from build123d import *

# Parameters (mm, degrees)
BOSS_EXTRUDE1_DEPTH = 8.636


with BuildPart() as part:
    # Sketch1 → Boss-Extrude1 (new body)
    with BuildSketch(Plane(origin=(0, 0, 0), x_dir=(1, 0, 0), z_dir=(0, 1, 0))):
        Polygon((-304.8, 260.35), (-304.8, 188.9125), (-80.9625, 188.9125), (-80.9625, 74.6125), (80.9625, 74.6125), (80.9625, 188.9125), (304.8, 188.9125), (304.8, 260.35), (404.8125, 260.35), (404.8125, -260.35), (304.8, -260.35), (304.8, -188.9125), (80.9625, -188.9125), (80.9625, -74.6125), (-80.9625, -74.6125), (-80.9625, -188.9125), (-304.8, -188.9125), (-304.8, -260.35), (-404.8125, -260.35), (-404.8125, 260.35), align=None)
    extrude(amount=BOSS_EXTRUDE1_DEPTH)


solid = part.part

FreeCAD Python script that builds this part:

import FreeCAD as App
import Part
import Sketcher
from FreeCAD import Vector
Q = App.Units.Quantity


def add_polygon(sketch, points):
    """Adds a closed chain of lines whose ends are joined by coincident constraints."""
    first, n = sketch.GeometryCount, len(points)
    for a, b in zip(points, points[1:] + points[:1]):
        sketch.addGeometry(Part.LineSegment(App.Vector(*a, 0), App.Vector(*b, 0)), False)
    for i in range(n):
        sketch.addConstraint(Sketcher.Constraint("Coincident", first + i, 2, first + (i + 1) % n, 1))

doc = App.newDocument("Part")
params = doc.addObject("Spreadsheet::Sheet", "Params")
for row, (alias, value) in enumerate([
    ("sketch1_height", "20.5 in"),
    ("sketch1_height2", "4.5 in"),
    ("sketch1_width", "3.9375 in"),
    ("sketch1_width2", "8.8125 in"),
    ("sketch1_height3", "2.8125 in"),
    ("pad1_length", "0.34 in"),
], start=1):
    params.set(f"A{row}", alias)
    params.set(f"B{row}", "=" + value)
    params.setAlias(f"B{row}", alias)

body = doc.addObject("PartDesign::Body", "Body")

sketch1 = body.newObject("Sketcher::SketchObject", "Sketch")
sketch1.AttachmentSupport = (doc.getObject("XZ_Plane"), [""])
sketch1.MapMode = "FlatFace"
add_polygon(sketch1, [(-305, -189), (-305, -260), (-405, -260), (-405, 260), (-305, 260), (-305, 189), (-81, 189), (-81, 75), (81, 75), (81, 189), (305, 189), (305, 260), (405, 260), (405, -260), (305, -260), (305, -189), (81, -189), (81, -75), (-81, -75), (-81, -189)])
sketch1.addConstraint([
    Sketcher.Constraint("Vertical", 0),
    Sketcher.Constraint("Horizontal", 1),
    Sketcher.Constraint("Vertical", 2),
    Sketcher.Constraint("Horizontal", 3),
    Sketcher.Constraint("Vertical", 4),
    Sketcher.Constraint("Horizontal", 5),
    Sketcher.Constraint("Vertical", 6),
    Sketcher.Constraint("Horizontal", 7),
    Sketcher.Constraint("Vertical", 8),
    Sketcher.Constraint("Horizontal", 9),
    Sketcher.Constraint("Vertical", 10),
    Sketcher.Constraint("Horizontal", 11),
    Sketcher.Constraint("Vertical", 12),
    Sketcher.Constraint("Horizontal", 13),
    Sketcher.Constraint("Vertical", 14),
    Sketcher.Constraint("Horizontal", 15),
    Sketcher.Constraint("Vertical", 16),
    Sketcher.Constraint("Horizontal", 17),
    Sketcher.Constraint("Vertical", 18),
    Sketcher.Constraint("Horizontal", 19),
    Sketcher.Constraint("Symmetric", 0, 2, 10, 2, -1, 1),
    Sketcher.Constraint("Symmetric", 2, 2, 12, 2, -1, 1),
    Sketcher.Constraint("Symmetric", 4, 2, 14, 2, -1, 1),
    Sketcher.Constraint("Symmetric", 6, 2, 16, 2, -1, 1),
    Sketcher.Constraint("Symmetric", 8, 2, 18, 2, -1, 1),
    Sketcher.Constraint("Symmetric", 5, 2, 8, 2, -2),
    Sketcher.Constraint("Symmetric", 3, 2, 10, 2, -2),
    Sketcher.Constraint("DistanceY", 2, 1, 2, 2, Q("20.5 in")),
    Sketcher.Constraint("DistanceY", 6, 2, 6, 1, Q("4.5 in")),
    Sketcher.Constraint("DistanceX", 0, 2, -1, 1, Q("12 in")),
    Sketcher.Constraint("DistanceX", 1, 2, 1, 1, Q("3.9375 in")),
    Sketcher.Constraint("DistanceX", 5, 1, 5, 2, Q("8.8125 in")),
    Sketcher.Constraint("DistanceY", 0, 2, 0, 1, Q("2.8125 in")),
])
sketch1.setExpression("Constraints[47]", "Params.sketch1_height")
sketch1.setExpression("Constraints[48]", "Params.sketch1_height2")
sketch1.setExpression("Constraints[50]", "Params.sketch1_width")
sketch1.setExpression("Constraints[51]", "Params.sketch1_width2")
sketch1.setExpression("Constraints[52]", "Params.sketch1_height3")
pad1 = body.newObject("PartDesign::Pad", "Pad")
pad1.Profile = sketch1
pad1.setExpression("Length", "Params.pad1_length")
pad1.Reversed = True

doc.recompute()
